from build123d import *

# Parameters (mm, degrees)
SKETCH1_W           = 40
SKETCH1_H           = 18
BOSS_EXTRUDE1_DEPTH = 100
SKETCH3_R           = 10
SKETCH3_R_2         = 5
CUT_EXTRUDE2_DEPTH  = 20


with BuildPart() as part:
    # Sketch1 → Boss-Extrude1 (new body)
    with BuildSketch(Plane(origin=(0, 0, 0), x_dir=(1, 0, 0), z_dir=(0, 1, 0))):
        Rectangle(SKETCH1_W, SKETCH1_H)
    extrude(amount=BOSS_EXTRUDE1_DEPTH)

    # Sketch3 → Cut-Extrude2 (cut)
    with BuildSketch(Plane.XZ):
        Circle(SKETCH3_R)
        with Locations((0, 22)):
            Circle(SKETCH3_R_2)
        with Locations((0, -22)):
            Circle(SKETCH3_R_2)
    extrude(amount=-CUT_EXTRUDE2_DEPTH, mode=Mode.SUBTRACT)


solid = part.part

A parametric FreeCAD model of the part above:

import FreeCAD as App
import Part
import Sketcher


def add_polygon(sketch, points):
    """Adds a closed chain of lines whose ends are joined by coincident constraints."""
    first, n = sketch.GeometryCount, len(points)
    for a, b in zip(points, points[1:] + points[:1]):
        sketch.addGeometry(Part.LineSegment(App.Vector(*a, 0), App.Vector(*b, 0)), False)
    for i in range(n):
        sketch.addConstraint(Sketcher.Constraint("Coincident", first + i, 2, first + (i + 1) % n, 1))

doc = App.newDocument("Part")
body = doc.addObject("PartDesign::Body", "Body")

# Sketch on XZ plane
sketch1 = body.newObject("Sketcher::SketchObject", "Sketch")
sketch1.AttachmentSupport = (doc.getObject("XZ_Plane"), [""])
sketch1.MapMode = "FlatFace"
add_polygon(sketch1, [(-20, -9), (-20, 9), (20, 9), (20, -9)])  # lines 0-3
sketch1.addConstraint([
    Sketcher.Constraint("Vertical", 0),
    Sketcher.Constraint("Horizontal", 1),
    Sketcher.Constraint("Vertical", 2),
    Sketcher.Constraint("Horizontal", 3),
    Sketcher.Constraint("Symmetric", 0, 2, 2, 2, -1, 1),
    Sketcher.Constraint("DistanceX", 1, 1, 1, 2, 40.0),
    Sketcher.Constraint("DistanceY", 0, 1, 0, 2, 18.0),
])
pad1 = body.newObject("PartDesign::Pad", "Pad")
pad1.Profile = sketch1
pad1.Length = 100
pad1.Reversed = True

# Sketch on XZ plane
sketch2 = body.newObject("Sketcher::SketchObject", "Sketch001")
sketch2.AttachmentSupport = (doc.getObject("XZ_Plane"), [""])
sketch2.MapMode = "FlatFace"
sketch2.addGeometry([
    Part.Circle(App.Vector(0, 0, 0), App.Vector(0, 0, 1), 10),
    Part.Circle(App.Vector(0, 22, 0), App.Vector(0, 0, 1), 5),
    Part.Circle(App.Vector(0, -22, 0), App.Vector(0, 0, 1), 5),
], False)
sketch2.addConstraint([
    Sketcher.Constraint("Coincident", 0, 3, -1, 1),
    Sketcher.Constraint("Equal", 1, 2),
    Sketcher.Constraint("Symmetric", 1, 3, 2, 3, -1, 1),
    Sketcher.Constraint("PointOnObject", 1, 3, -2),
    Sketcher.Constraint("Diameter", 0, 20.0),
    Sketcher.Constraint("Diameter", 1, 10.0),
    Sketcher.Constraint("DistanceY", -1, 1, 1, 3, 22.0),
])
pocket1 = body.newObject("PartDesign::Pocket", "Pocket")
pocket1.Profile = sketch2
pocket1.Length = 20

doc.recompute()
